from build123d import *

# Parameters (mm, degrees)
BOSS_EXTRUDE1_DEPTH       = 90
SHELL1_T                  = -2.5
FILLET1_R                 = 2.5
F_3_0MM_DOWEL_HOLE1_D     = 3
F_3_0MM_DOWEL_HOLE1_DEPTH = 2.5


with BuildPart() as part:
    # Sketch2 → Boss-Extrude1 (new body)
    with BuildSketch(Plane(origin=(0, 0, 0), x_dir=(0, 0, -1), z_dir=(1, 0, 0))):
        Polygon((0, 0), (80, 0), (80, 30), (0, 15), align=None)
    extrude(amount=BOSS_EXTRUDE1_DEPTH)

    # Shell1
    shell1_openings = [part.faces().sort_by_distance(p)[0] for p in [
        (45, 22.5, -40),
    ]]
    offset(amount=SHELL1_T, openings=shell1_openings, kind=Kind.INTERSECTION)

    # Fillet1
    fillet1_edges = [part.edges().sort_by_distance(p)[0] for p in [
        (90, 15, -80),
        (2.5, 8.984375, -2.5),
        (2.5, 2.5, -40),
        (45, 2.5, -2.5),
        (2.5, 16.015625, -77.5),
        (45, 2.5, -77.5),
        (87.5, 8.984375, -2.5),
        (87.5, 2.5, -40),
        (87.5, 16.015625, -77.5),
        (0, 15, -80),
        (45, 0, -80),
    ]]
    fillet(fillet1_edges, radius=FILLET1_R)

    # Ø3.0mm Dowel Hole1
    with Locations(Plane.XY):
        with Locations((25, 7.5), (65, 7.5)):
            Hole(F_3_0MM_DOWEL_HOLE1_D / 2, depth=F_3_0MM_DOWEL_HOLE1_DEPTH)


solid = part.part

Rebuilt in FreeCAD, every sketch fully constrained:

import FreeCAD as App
import Part
import Sketcher

V = App.Vector
Q = App.Units.Quantity


def edges_at(feature, points):
    """Names of the edges that pass closest to the given points."""
    edges = feature.Shape.Edges
    near = lambda p: min(range(len(edges)), key=lambda i: edges[i].distToShape(Part.Vertex(*p))[0])
    return sorted({f"Edge{near(p) + 1}" for p in points})


def faces_at(feature, points):
    """Names of the faces that lie closest to the given points."""
    faces = feature.Shape.Faces
    near = lambda p: min(range(len(faces)), key=lambda i: faces[i].distToShape(Part.Vertex(*p))[0])
    return sorted({f"Face{near(p) + 1}" for p in points})

doc = App.newDocument("Part")
body = doc.addObject("PartDesign::Body", "Body")

sketch1 = doc.addObject("Sketcher::SketchObject", "Sketch")
body.addObject(sketch1)
sketch1.AttachmentSupport = (doc.YZ_Plane, [""])
sketch1.MapMode = "FlatFace"
sketch1.addGeometry(Part.LineSegment(V(0, 0, 0), V(0, -80, 0)), False)
sketch1.addGeometry(Part.LineSegment(V(0, -80, 0), V(30, -80, 0)), False)
sketch1.addGeometry(Part.LineSegment(V(30, -80, 0), V(15, 0, 0)), False)
sketch1.addGeometry(Part.LineSegment(V(15, 0, 0), V(0, 0, 0)), False)
sketch1.addConstraint(Sketcher.Constraint("Coincident", 0, 2, 1, 1))
sketch1.addConstraint(Sketcher.Constraint("Coincident", 1, 2, 2, 1))
sketch1.addConstraint(Sketcher.Constraint("Coincident", 2, 2, 3, 1))
sketch1.addConstraint(Sketcher.Constraint("Coincident", 3, 2, 0, 1))
sketch1.addConstraint(Sketcher.Constraint("Vertical", 0))
sketch1.addConstraint(Sketcher.Constraint("Horizontal", 1))
sketch1.addConstraint(Sketcher.Constraint("Horizontal", 3))
sketch1.addConstraint(Sketcher.Constraint("Coincident", 3, 2, -1, 1))
sketch1.addConstraint(Sketcher.Constraint("DistanceX", 1, 1, 1, 2, Q("30 mm")))
sketch1.addConstraint(Sketcher.Constraint("DistanceX", 3, 2, 3, 1, Q("15 mm")))
sketch1.addConstraint(Sketcher.Constraint("DistanceY", 0, 2, 0, 1, Q("80 mm")))
pad1 = doc.addObject("PartDesign::Pad", "Pad")
body.addObject(pad1)
pad1.Profile = sketch1
pad1.Length = 90
doc.recompute()

thickness = doc.addObject("PartDesign::Thickness", "Thickness")
body.addObject(thickness)
thickness.Base = (pad1, faces_at(pad1, [(45, 22.5, -40)]))
thickness.Value = 2.5
thickness.Reversed = True
thickness.Join = "Intersection"
doc.recompute()

fillet = doc.addObject("PartDesign::Fillet", "Fillet")
body.addObject(fillet)
fillet.Base = (thickness, edges_at(thickness, [
    (90, 15, -80),
    (2.5, 8.984, -2.5),
    (2.5, 2.5, -40),
    (45, 2.5, -2.5),
    (2.5, 16.016, -77.5),
    (45, 2.5, -77.5),
    (87.5, 8.984, -2.5),
    (87.5, 2.5, -40),
    (87.5, 16.016, -77.5),
    (0, 15, -80),
    (45, 0, -80),
]))
fillet.Radius = 2.5

sketch2 = doc.addObject("Sketcher::SketchObject", "Sketch001")
body.addObject(sketch2)
sketch2.AttachmentSupport = (doc.XY_Plane, [""])
sketch2.MapMode = "FlatFace"
sketch2.addGeometry(Part.Circle(V(25, 7.5, 0), V(0, 0, 1), 1.5), False)
sketch2.addGeometry(Part.Circle(V(65, 7.5, 0), V(0, 0, 1), 1.5), False)
sketch2.addConstraint(Sketcher.Constraint("Equal", 0, 1))
sketch2.addConstraint(Sketcher.Constraint("Horizontal", 0, 3, 1, 3))
sketch2.addConstraint(Sketcher.Constraint("Diameter", 0, Q("3 mm")))
sketch2.addConstraint(Sketcher.Constraint("DistanceX", -1, 1, 0, 3, Q("25 mm")))
sketch2.addConstraint(Sketcher.Constraint("DistanceX", -1, 1, 1, 3, Q("65 mm")))
sketch2.addConstraint(Sketcher.Constraint("DistanceY", -1, 1, 0, 3, Q("7.5 mm")))
doc.recompute()
hole = doc.addObject("PartDesign::Hole", "Hole")
body.addObject(hole)
hole.Profile = sketch2
hole.ThreadType = "None"
hole.Diameter = 3
hole.DepthType = "Dimension"
hole.Depth = 2.5
hole.DrillPoint = "Flat"

doc.recompute()
